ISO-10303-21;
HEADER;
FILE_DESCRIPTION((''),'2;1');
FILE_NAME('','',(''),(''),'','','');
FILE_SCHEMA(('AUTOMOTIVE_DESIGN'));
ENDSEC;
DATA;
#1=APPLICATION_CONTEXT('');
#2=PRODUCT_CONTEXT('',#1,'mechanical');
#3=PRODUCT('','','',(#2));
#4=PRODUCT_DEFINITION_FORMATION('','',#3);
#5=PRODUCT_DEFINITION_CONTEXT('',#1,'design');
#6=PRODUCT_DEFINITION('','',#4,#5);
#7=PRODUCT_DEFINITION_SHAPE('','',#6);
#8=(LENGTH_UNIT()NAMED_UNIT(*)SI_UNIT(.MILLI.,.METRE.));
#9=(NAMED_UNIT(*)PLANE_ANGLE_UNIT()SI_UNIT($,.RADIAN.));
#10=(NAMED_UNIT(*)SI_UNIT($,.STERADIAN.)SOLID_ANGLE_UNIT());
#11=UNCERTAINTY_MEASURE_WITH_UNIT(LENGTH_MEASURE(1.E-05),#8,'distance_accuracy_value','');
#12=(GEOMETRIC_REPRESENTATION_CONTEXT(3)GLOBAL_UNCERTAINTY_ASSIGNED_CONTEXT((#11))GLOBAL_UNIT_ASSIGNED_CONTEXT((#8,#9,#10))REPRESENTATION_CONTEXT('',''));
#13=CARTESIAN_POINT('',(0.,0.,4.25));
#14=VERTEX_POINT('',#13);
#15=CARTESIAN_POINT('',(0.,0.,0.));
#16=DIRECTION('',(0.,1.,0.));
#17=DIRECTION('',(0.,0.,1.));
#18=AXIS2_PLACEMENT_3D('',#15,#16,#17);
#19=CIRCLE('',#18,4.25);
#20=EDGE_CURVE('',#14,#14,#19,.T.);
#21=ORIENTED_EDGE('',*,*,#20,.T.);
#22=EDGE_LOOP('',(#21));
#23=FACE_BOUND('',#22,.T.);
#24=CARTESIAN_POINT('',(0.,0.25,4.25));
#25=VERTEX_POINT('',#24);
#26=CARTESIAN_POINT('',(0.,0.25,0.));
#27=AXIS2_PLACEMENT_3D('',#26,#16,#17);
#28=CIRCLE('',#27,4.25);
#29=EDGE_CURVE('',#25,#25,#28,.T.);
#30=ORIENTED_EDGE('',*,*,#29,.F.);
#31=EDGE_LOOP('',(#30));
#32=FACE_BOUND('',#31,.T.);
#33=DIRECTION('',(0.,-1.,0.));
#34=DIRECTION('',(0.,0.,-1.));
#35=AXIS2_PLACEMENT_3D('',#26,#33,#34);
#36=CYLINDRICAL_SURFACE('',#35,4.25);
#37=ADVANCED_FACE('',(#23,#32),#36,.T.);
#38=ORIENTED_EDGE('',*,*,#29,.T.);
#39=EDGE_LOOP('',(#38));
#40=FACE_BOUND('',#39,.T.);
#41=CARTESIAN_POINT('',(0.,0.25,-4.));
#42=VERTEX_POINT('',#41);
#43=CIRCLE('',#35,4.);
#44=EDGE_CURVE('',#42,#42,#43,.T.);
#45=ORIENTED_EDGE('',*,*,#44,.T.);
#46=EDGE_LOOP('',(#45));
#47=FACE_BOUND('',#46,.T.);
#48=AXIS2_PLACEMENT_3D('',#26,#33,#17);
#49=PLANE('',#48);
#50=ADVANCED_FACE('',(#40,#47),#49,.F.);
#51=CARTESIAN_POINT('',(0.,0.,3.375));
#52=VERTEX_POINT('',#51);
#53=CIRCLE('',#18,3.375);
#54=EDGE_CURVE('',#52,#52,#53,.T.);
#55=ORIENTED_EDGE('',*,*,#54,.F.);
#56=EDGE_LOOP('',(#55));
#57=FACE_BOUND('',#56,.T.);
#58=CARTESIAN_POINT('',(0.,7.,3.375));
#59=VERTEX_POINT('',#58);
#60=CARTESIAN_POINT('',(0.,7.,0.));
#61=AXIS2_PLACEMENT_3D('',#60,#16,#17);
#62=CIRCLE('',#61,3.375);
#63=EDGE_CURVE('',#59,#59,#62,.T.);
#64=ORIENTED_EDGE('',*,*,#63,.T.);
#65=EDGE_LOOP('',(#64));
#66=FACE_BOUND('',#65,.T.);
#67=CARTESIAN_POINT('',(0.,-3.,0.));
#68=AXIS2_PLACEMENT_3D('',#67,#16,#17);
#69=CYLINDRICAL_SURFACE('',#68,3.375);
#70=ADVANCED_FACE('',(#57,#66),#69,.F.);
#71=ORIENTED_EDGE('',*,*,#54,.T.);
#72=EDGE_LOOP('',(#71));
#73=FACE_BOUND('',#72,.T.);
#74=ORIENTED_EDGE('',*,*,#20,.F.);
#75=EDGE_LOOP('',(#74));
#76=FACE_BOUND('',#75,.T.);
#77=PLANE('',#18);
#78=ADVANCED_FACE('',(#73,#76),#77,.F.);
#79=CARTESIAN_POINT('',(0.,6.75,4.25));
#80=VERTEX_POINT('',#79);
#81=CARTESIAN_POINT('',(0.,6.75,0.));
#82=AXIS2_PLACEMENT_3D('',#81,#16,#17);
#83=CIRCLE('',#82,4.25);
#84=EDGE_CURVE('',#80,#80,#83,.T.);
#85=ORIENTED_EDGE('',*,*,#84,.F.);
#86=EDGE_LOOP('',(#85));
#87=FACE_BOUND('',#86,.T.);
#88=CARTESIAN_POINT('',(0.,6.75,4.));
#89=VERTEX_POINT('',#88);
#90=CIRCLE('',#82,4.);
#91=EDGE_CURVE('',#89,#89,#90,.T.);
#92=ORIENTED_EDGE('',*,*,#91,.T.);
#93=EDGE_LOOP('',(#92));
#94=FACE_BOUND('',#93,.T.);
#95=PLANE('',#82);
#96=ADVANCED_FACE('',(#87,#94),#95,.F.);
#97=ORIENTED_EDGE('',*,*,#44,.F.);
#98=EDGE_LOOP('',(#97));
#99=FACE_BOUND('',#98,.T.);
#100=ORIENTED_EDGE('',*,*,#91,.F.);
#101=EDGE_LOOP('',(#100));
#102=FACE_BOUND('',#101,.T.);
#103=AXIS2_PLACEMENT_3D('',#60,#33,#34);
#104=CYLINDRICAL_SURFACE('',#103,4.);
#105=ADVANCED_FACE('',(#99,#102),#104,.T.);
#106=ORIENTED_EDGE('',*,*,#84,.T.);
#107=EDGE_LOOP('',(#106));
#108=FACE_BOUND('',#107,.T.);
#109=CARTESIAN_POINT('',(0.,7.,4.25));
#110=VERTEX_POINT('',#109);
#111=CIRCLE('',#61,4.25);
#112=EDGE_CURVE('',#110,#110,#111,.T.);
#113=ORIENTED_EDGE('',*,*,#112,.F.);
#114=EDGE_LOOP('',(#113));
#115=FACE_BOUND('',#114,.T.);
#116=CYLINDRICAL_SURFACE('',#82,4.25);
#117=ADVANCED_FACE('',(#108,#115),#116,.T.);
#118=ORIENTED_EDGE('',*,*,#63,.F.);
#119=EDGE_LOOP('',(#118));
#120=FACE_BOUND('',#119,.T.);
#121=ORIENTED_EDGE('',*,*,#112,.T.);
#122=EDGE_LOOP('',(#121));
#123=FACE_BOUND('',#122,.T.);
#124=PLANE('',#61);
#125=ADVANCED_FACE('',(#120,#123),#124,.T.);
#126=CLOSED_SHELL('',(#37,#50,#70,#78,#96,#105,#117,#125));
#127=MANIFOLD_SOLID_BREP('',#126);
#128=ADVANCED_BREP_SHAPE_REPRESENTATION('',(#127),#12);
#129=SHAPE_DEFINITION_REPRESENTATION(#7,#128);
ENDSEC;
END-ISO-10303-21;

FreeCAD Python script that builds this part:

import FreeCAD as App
import Part
import Sketcher
from FreeCAD import Vector
Q = App.Units.Quantity

doc = App.newDocument("Part")
body = doc.addObject("PartDesign::Body", "Body")

sketch1 = body.newObject("Sketcher::SketchObject", "Sketch")
sketch1.AttachmentSupport = (doc.getObject("XZ_Plane"), [""])
sketch1.MapMode = "FlatFace"
sketch1.addGeometry(Part.Circle(Vector(0, 0, 0), Vector(0, 0, 1), 4), False)
sketch1.addConstraint(Sketcher.Constraint("Coincident", 0, 3, -1, 1))
sketch1.addConstraint(Sketcher.Constraint("Diameter", 0, Q("8 mm")))
pad1 = body.newObject("PartDesign::Pad", "Pad")
pad1.Profile = sketch1
pad1.Length = 7
pad1.Reversed = True

sketch2 = body.newObject("Sketcher::SketchObject", "Sketch001")
sketch2.AttachmentSupport = (doc.getObject("XZ_Plane"), [""])
sketch2.MapMode = "FlatFace"
sketch2.AttachmentOffset = App.Placement(Vector(0, 0, -7), App.Rotation())
sketch2.addGeometry(Part.Circle(Vector(0, 0, 0), Vector(0, 0, 1), 3.4), False)
sketch2.addConstraint(Sketcher.Constraint("Coincident", 0, 3, -1, 1))
sketch2.addConstraint(Sketcher.Constraint("Diameter", 0, Q("6.75 mm")))
pocket1 = body.newObject("PartDesign::Pocket", "Pocket")
pocket1.Profile = sketch2
pocket1.Length = 10
pocket1.Reversed = True

sketch3 = body.newObject("Sketcher::SketchObject", "Sketch002")
sketch3.AttachmentSupport = (doc.getObject("XZ_Plane"), [""])
sketch3.MapMode = "FlatFace"
sketch3.AttachmentOffset = App.Placement(Vector(0, 0, -6.75), App.Rotation())
sketch3.addGeometry(Part.Circle(Vector(0, 0, 0), Vector(0, 0, 1), 4.2), False)
sketch3.addGeometry(Part.Circle(Vector(0, 0, 0), Vector(0, 0, 1), 4), False)
sketch3.addConstraint(Sketcher.Constraint("Coincident", 0, 3, -1, 1))
sketch3.addConstraint(Sketcher.Constraint("Coincident", 1, 3, -1, 1))
sketch3.addConstraint(Sketcher.Constraint("Diameter", 1, Q("8 mm")))
sketch3.addConstraint(Sketcher.Constraint("Diameter", 0, Q("8.5 mm")))
pad2 = body.newObject("PartDesign::Pad", "Pad001")
pad2.Profile = sketch3
pad2.Length = 0.25
pad2.Reversed = True
doc.recompute()

datumplane = body.newObject("PartDesign::Plane", "DatumPlane")
datumplane.AttachmentSupport = (doc.getObject("XZ_Plane"), [""])
datumplane.MapMode = "FlatFace"
datumplane.AttachmentOffset = App.Placement(Vector(0, 0, -3.5), App.Rotation())
mirrored = body.newObject("PartDesign::Mirrored", "Mirrored")
mirrored.Originals = [pad2]
mirrored.MirrorPlane = (datumplane, [""])
body.Tip = mirrored

doc.recompute()
